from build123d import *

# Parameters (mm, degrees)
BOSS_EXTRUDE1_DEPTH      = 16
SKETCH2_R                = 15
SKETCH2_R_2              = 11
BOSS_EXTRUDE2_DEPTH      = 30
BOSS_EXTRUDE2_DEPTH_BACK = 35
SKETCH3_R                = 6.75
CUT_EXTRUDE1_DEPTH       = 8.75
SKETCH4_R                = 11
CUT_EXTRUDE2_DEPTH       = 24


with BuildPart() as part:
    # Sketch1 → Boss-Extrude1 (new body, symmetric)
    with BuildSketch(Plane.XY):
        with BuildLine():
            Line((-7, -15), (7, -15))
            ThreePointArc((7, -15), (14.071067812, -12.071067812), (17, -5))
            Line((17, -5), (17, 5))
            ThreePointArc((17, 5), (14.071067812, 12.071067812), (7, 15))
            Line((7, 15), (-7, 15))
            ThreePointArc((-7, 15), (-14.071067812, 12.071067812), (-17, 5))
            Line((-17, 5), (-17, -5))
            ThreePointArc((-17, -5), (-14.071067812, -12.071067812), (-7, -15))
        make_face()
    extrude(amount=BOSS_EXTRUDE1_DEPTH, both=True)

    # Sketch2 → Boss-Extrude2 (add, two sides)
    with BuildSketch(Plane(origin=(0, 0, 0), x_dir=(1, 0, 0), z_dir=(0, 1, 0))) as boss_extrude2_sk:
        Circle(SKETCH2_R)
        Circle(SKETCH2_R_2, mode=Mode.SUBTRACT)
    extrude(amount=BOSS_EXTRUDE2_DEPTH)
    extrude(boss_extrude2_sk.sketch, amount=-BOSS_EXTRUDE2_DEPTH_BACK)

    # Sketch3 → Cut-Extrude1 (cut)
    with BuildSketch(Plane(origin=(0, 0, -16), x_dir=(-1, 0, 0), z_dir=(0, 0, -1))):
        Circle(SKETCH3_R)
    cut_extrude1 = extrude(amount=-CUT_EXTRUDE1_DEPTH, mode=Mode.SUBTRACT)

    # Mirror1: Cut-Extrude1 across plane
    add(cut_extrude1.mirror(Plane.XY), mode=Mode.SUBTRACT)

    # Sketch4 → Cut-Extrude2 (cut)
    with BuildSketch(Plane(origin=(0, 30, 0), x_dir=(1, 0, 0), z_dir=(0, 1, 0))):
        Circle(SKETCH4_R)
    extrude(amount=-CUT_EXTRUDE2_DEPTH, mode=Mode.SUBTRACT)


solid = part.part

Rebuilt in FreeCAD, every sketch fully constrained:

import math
import FreeCAD as App
import Part
import Sketcher

doc = App.newDocument("Part")
params = doc.addObject("Spreadsheet::Sheet", "Params")
for row, (alias, value) in enumerate([
    ("sketch1_radius", "10 mm"),
    ("sketch1_width", "14 mm"),
    ("sketch1_height", "10 mm"),
    ("pad1_length", "32 mm"),
    ("sketch2_diameter", "30 mm"),
    ("sketch2_diameter2", "22 mm"),
    ("pad2_length", "30 mm"),
    ("pad2_length2", "35 mm"),
    ("sketch3_diameter", "13.5 mm"),
    ("pocket1_length", "8.75 mm"),
    ("sketch4_diameter", "22 mm"),
    ("pocket2_length", "24 mm"),
], start=1):
    params.set(f"A{row}", alias)
    params.set(f"B{row}", "=" + value)
    params.setAlias(f"B{row}", alias)

body = doc.addObject("PartDesign::Body", "Body")

sketch1 = doc.addObject("Sketcher::SketchObject", "Sketch")
body.addObject(sketch1)
sketch1.AttachmentSupport = (doc.XY_Plane, [""])
sketch1.MapMode = "FlatFace"
sketch1.addGeometry(Part.LineSegment(App.Vector(-7, -15, 0), App.Vector(7, -15, 0)), False)
sketch1.addGeometry(Part.ArcOfCircle(Part.Circle(App.Vector(7, -5, 0), App.Vector(0, 0, 1), 10), math.radians(-90), math.radians(0)), False)
sketch1.addGeometry(Part.LineSegment(App.Vector(17, -5, 0), App.Vector(17, 5, 0)), False)
sketch1.addGeometry(Part.ArcOfCircle(Part.Circle(App.Vector(7, 5, 0), App.Vector(0, 0, 1), 10), math.radians(0), math.radians(90)), False)
sketch1.addGeometry(Part.LineSegment(App.Vector(7, 15, 0), App.Vector(-7, 15, 0)), False)
sketch1.addGeometry(Part.ArcOfCircle(Part.Circle(App.Vector(-7, 5, 0), App.Vector(0, 0, 1), 10), math.radians(90), math.radians(180)), False)
sketch1.addGeometry(Part.LineSegment(App.Vector(-17, 5, 0), App.Vector(-17, -5, 0)), False)
sketch1.addGeometry(Part.ArcOfCircle(Part.Circle(App.Vector(-7, -5, 0), App.Vector(0, 0, 1), 10), math.radians(180), math.radians(270)), False)
sketch1.addConstraint(Sketcher.Constraint("Tangent", 0, 2, 1, 1))
sketch1.addConstraint(Sketcher.Constraint("Tangent", 1, 2, 2, 1))
sketch1.addConstraint(Sketcher.Constraint("Tangent", 2, 2, 3, 1))
sketch1.addConstraint(Sketcher.Constraint("Tangent", 3, 2, 4, 1))
sketch1.addConstraint(Sketcher.Constraint("Tangent", 4, 2, 5, 1))
sketch1.addConstraint(Sketcher.Constraint("Tangent", 5, 2, 6, 1))
sketch1.addConstraint(Sketcher.Constraint("Tangent", 6, 2, 7, 1))
sketch1.addConstraint(Sketcher.Constraint("Tangent", 7, 2, 0, 1))
sketch1.addConstraint(Sketcher.Constraint("Horizontal", 0))
sketch1.addConstraint(Sketcher.Constraint("Vertical", 2))
sketch1.addConstraint(Sketcher.Constraint("Horizontal", 4))
sketch1.addConstraint(Sketcher.Constraint("Vertical", 6))
sketch1.addConstraint(Sketcher.Constraint("Equal", 1, 3))
sketch1.addConstraint(Sketcher.Constraint("Equal", 3, 5))
sketch1.addConstraint(Sketcher.Constraint("Equal", 5, 7))
sketch1.addConstraint(Sketcher.Constraint("Symmetric", 1, 3, 5, 3, -1, 1))
sketch1.addConstraint(Sketcher.Constraint("Radius", 1, 10.0))
sketch1.addConstraint(Sketcher.Constraint("DistanceX", 0, 1, 0, 2, 14.0))
sketch1.addConstraint(Sketcher.Constraint("DistanceY", 2, 1, 2, 2, 10.0))
sketch1.setExpression("Constraints[16]", "Params.sketch1_radius")
sketch1.setExpression("Constraints[17]", "Params.sketch1_width")
sketch1.setExpression("Constraints[18]", "Params.sketch1_height")
pad1 = doc.addObject("PartDesign::Pad", "Pad")
body.addObject(pad1)
pad1.Profile = sketch1
pad1.setExpression("Length", "Params.pad1_length")
pad1.Midplane = True

sketch2 = doc.addObject("Sketcher::SketchObject", "Sketch001")
body.addObject(sketch2)
sketch2.AttachmentSupport = (doc.XZ_Plane, [""])
sketch2.MapMode = "FlatFace"
sketch2.addGeometry(Part.Circle(App.Vector(0, 0, 0), App.Vector(0, 0, 1), 15), False)
sketch2.addGeometry(Part.Circle(App.Vector(0, 0, 0), App.Vector(0, 0, 1), 11), False)
sketch2.addConstraint(Sketcher.Constraint("Coincident", 0, 3, -1, 1))
sketch2.addConstraint(Sketcher.Constraint("Coincident", 1, 3, -1, 1))
sketch2.addConstraint(Sketcher.Constraint("Diameter", 0, 30.0))
sketch2.addConstraint(Sketcher.Constraint("Diameter", 1, 22.0))
sketch2.setExpression("Constraints[2]", "Params.sketch2_diameter")
sketch2.setExpression("Constraints[3]", "Params.sketch2_diameter2")
pad2 = doc.addObject("PartDesign::Pad", "Pad001")
body.addObject(pad2)
pad2.Profile = sketch2
pad2.Type = "TwoLengths"
pad2.setExpression("Length", "Params.pad2_length")
pad2.setExpression("Length2", "Params.pad2_length2")
pad2.Reversed = True

sketch3 = doc.addObject("Sketcher::SketchObject", "Sketch002")
body.addObject(sketch3)
sketch3.AttachmentSupport = (doc.XY_Plane, [""])
sketch3.MapMode = "FlatFace"
sketch3.AttachmentOffset = App.Placement(App.Vector(0, 0, -16), App.Rotation())
sketch3.addGeometry(Part.Circle(App.Vector(0, 0, 0), App.Vector(0, 0, 1), 6.75), False)
sketch3.addConstraint(Sketcher.Constraint("Coincident", 0, 3, -1, 1))
sketch3.addConstraint(Sketcher.Constraint("Diameter", 0, 13.5))
sketch3.setExpression("Constraints[1]", "Params.sketch3_diameter")
pocket1 = doc.addObject("PartDesign::Pocket", "Pocket")
body.addObject(pocket1)
pocket1.Profile = sketch3
pocket1.setExpression("Length", "Params.pocket1_length")
pocket1.Reversed = True
doc.recompute()

mirrored = doc.addObject("PartDesign::Mirrored", "Mirrored")
body.addObject(mirrored)
mirrored.Originals = [pocket1]
mirrored.MirrorPlane = (doc.XY_Plane, [""])
body.Tip = mirrored

sketch4 = doc.addObject("Sketcher::SketchObject", "Sketch003")
body.addObject(sketch4)
sketch4.AttachmentSupport = (doc.XZ_Plane, [""])
sketch4.MapMode = "FlatFace"
sketch4.AttachmentOffset = App.Placement(App.Vector(0, 0, -30), App.Rotation())
sketch4.addGeometry(Part.Circle(App.Vector(0, 0, 0), App.Vector(0, 0, 1), 11), False)
sketch4.addConstraint(Sketcher.Constraint("Coincident", 0, 3, -1, 1))
sketch4.addConstraint(Sketcher.Constraint("Diameter", 0, 22.0))
sketch4.setExpression("Constraints[1]", "Params.sketch4_diameter")
pocket2 = doc.addObject("PartDesign::Pocket", "Pocket001")
body.addObject(pocket2)
pocket2.Profile = sketch4
pocket2.setExpression("Length", "Params.pocket2_length")
pocket2.Reversed = True

doc.recompute()
